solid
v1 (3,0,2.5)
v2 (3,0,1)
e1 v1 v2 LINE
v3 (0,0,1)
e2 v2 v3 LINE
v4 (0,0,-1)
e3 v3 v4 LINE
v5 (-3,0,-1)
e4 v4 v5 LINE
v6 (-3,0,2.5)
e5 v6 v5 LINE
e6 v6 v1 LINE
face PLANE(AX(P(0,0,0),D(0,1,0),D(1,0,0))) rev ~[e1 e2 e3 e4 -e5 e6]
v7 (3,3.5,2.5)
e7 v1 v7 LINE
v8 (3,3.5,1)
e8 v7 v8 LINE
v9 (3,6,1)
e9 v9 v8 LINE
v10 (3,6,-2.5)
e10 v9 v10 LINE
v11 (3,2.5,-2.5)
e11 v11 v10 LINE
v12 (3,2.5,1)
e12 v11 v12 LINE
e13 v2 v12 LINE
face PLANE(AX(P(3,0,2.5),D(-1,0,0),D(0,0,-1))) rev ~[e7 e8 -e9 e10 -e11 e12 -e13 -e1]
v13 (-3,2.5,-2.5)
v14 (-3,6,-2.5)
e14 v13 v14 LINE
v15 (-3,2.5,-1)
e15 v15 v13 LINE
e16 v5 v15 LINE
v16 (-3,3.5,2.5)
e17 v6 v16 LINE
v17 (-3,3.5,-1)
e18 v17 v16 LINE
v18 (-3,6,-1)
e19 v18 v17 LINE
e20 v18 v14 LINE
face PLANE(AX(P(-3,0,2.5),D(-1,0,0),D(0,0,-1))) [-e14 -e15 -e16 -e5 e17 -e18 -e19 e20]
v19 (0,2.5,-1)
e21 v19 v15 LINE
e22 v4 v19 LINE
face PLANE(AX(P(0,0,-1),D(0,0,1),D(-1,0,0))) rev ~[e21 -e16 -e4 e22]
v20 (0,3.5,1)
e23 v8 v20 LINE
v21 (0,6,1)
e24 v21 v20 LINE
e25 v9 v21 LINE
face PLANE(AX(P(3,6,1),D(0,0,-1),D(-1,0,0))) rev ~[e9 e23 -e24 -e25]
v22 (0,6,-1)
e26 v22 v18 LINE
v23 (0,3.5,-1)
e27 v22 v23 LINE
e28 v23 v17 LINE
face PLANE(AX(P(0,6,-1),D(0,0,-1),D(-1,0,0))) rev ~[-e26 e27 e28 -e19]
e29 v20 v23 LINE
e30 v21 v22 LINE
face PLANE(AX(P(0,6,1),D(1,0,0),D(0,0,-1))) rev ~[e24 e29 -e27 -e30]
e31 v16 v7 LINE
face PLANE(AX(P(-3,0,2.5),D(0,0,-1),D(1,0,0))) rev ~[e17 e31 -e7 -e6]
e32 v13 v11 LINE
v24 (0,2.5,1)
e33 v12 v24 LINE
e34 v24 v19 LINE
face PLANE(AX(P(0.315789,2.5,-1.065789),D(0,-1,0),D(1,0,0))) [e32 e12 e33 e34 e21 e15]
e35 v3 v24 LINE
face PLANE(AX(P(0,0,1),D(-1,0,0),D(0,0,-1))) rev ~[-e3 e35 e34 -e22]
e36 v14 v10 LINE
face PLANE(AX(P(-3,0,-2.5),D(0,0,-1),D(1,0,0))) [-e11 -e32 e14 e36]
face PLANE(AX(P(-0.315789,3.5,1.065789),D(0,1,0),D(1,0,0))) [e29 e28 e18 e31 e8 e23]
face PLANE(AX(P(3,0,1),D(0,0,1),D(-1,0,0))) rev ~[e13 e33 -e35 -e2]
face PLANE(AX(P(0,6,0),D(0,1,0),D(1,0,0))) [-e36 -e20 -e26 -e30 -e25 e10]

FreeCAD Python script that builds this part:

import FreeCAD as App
import Part
import Sketcher


def add_polygon(sketch, points):
    """Adds a closed chain of lines whose ends are joined by coincident constraints."""
    first, n = sketch.GeometryCount, len(points)
    for a, b in zip(points, points[1:] + points[:1]):
        sketch.addGeometry(Part.LineSegment(App.Vector(*a, 0), App.Vector(*b, 0)), False)
    for i in range(n):
        sketch.addConstraint(Sketcher.Constraint("Coincident", first + i, 2, first + (i + 1) % n, 1))

doc = App.newDocument("Part")
params = doc.addObject("Spreadsheet::Sheet", "Params")
for row, (alias, value) in enumerate([
    ("sketch1_width", "6 mm"),
    ("sketch1_height", "5 mm"),
    ("pad1_length", "6 mm"),
    ("sketch2_width", "3 mm"),
    ("sketch2_height", "2 mm"),
    ("sketch2_height2", "3.5 mm"),
    ("pocket1_length", "2.5 mm"),
    ("sketch3_width", "3 mm"),
    ("sketch3_height", "2 mm"),
    ("sketch3_height2", "3.5 mm"),
    ("pocket2_length", "2.5 mm"),
], start=1):
    params.set(f"A{row}", alias)
    params.set(f"B{row}", "=" + value)
    params.setAlias(f"B{row}", alias)

body = doc.addObject("PartDesign::Body", "Body")

# Sketch on XZ plane
sketch1 = body.newObject("Sketcher::SketchObject", "Sketch")
sketch1.AttachmentSupport = (doc.getObject("XZ_Plane"), [""])
sketch1.MapMode = "FlatFace"
add_polygon(sketch1, [(-3, -2), (-3, 2), (3, 2), (3, -2)])  # lines 0-3
sketch1.addConstraint([
    Sketcher.Constraint("Vertical", 0),
    Sketcher.Constraint("Horizontal", 1),
    Sketcher.Constraint("Vertical", 2),
    Sketcher.Constraint("Horizontal", 3),
    Sketcher.Constraint("Symmetric", 0, 2, 2, 2, -1, 1),
    Sketcher.Constraint("DistanceX", 1, 1, 1, 2, 6.0),
    Sketcher.Constraint("DistanceY", 0, 1, 0, 2, 5.0),
])
sketch1.setExpression("Constraints[9]", "Params.sketch1_width")
sketch1.setExpression("Constraints[10]", "Params.sketch1_height")
pad1 = body.newObject("PartDesign::Pad", "Pad")
pad1.Profile = sketch1
pad1.setExpression("Length", "Params.pad1_length")
pad1.Reversed = True

# Sketch on XZ plane
sketch2 = body.newObject("Sketcher::SketchObject", "Sketch001")
sketch2.AttachmentSupport = (doc.getObject("XZ_Plane"), [""])
sketch2.MapMode = "FlatFace"
sketch2.AttachmentOffset = App.Placement(App.Vector(0, 0, -6), App.Rotation())
add_polygon(sketch2, [(3, 1), (0, 1), (0, -1), (-3, -1), (-3, 2.5), (3, 2.5)])  # lines 0-5
sketch2.addConstraint([
    Sketcher.Constraint("Horizontal", 0),
    Sketcher.Constraint("Vertical", 1),
    Sketcher.Constraint("Horizontal", 2),
    Sketcher.Constraint("Vertical", 3),
    Sketcher.Constraint("Horizontal", 4),
    Sketcher.Constraint("Vertical", 5),
    Sketcher.Constraint("Symmetric", 0, 2, 1, 2, -1, 1),
    Sketcher.Constraint("Equal", 0, 2),
    Sketcher.Constraint("DistanceX", 0, 2, 0, 1, 3.0),
    Sketcher.Constraint("DistanceY", 1, 2, 1, 1, 2.0),
    Sketcher.Constraint("DistanceY", 3, 1, 3, 2, 3.5),
])
sketch2.setExpression("Constraints[14]", "Params.sketch2_width")
sketch2.setExpression("Constraints[15]", "Params.sketch2_height")
sketch2.setExpression("Constraints[16]", "Params.sketch2_height2")
pocket1 = body.newObject("PartDesign::Pocket", "Pocket")
pocket1.Profile = sketch2
pocket1.setExpression("Length", "Params.pocket1_length")
pocket1.Reversed = True

# Sketch on XZ plane
sketch3 = body.newObject("Sketcher::SketchObject", "Sketch002")
sketch3.AttachmentSupport = (doc.getObject("XZ_Plane"), [""])
sketch3.MapMode = "FlatFace"
add_polygon(sketch3, [(3, -2.5), (3, 1), (0, 1), (0, -1), (-3, -1), (-3, -2.5)])  # lines 0-5
sketch3.addConstraint([
    Sketcher.Constraint("Vertical", 0),
    Sketcher.Constraint("Horizontal", 1),
    Sketcher.Constraint("Vertical", 2),
    Sketcher.Constraint("Horizontal", 3),
    Sketcher.Constraint("Vertical", 4),
    Sketcher.Constraint("Horizontal", 5),
    Sketcher.Constraint("Symmetric", 1, 2, 2, 2, -1, 1),
    Sketcher.Constraint("Equal", 1, 3),
    Sketcher.Constraint("DistanceX", 1, 2, 1, 1, 3.0),
    Sketcher.Constraint("DistanceY", 2, 2, 2, 1, 2.0),
    Sketcher.Constraint("DistanceY", 0, 1, 0, 2, 3.5),
])
sketch3.setExpression("Constraints[14]", "Params.sketch3_width")
sketch3.setExpression("Constraints[15]", "Params.sketch3_height")
sketch3.setExpression("Constraints[16]", "Params.sketch3_height2")
pocket2 = body.newObject("PartDesign::Pocket", "Pocket001")
pocket2.Profile = sketch3
pocket2.setExpression("Length", "Params.pocket2_length")

doc.recompute()
